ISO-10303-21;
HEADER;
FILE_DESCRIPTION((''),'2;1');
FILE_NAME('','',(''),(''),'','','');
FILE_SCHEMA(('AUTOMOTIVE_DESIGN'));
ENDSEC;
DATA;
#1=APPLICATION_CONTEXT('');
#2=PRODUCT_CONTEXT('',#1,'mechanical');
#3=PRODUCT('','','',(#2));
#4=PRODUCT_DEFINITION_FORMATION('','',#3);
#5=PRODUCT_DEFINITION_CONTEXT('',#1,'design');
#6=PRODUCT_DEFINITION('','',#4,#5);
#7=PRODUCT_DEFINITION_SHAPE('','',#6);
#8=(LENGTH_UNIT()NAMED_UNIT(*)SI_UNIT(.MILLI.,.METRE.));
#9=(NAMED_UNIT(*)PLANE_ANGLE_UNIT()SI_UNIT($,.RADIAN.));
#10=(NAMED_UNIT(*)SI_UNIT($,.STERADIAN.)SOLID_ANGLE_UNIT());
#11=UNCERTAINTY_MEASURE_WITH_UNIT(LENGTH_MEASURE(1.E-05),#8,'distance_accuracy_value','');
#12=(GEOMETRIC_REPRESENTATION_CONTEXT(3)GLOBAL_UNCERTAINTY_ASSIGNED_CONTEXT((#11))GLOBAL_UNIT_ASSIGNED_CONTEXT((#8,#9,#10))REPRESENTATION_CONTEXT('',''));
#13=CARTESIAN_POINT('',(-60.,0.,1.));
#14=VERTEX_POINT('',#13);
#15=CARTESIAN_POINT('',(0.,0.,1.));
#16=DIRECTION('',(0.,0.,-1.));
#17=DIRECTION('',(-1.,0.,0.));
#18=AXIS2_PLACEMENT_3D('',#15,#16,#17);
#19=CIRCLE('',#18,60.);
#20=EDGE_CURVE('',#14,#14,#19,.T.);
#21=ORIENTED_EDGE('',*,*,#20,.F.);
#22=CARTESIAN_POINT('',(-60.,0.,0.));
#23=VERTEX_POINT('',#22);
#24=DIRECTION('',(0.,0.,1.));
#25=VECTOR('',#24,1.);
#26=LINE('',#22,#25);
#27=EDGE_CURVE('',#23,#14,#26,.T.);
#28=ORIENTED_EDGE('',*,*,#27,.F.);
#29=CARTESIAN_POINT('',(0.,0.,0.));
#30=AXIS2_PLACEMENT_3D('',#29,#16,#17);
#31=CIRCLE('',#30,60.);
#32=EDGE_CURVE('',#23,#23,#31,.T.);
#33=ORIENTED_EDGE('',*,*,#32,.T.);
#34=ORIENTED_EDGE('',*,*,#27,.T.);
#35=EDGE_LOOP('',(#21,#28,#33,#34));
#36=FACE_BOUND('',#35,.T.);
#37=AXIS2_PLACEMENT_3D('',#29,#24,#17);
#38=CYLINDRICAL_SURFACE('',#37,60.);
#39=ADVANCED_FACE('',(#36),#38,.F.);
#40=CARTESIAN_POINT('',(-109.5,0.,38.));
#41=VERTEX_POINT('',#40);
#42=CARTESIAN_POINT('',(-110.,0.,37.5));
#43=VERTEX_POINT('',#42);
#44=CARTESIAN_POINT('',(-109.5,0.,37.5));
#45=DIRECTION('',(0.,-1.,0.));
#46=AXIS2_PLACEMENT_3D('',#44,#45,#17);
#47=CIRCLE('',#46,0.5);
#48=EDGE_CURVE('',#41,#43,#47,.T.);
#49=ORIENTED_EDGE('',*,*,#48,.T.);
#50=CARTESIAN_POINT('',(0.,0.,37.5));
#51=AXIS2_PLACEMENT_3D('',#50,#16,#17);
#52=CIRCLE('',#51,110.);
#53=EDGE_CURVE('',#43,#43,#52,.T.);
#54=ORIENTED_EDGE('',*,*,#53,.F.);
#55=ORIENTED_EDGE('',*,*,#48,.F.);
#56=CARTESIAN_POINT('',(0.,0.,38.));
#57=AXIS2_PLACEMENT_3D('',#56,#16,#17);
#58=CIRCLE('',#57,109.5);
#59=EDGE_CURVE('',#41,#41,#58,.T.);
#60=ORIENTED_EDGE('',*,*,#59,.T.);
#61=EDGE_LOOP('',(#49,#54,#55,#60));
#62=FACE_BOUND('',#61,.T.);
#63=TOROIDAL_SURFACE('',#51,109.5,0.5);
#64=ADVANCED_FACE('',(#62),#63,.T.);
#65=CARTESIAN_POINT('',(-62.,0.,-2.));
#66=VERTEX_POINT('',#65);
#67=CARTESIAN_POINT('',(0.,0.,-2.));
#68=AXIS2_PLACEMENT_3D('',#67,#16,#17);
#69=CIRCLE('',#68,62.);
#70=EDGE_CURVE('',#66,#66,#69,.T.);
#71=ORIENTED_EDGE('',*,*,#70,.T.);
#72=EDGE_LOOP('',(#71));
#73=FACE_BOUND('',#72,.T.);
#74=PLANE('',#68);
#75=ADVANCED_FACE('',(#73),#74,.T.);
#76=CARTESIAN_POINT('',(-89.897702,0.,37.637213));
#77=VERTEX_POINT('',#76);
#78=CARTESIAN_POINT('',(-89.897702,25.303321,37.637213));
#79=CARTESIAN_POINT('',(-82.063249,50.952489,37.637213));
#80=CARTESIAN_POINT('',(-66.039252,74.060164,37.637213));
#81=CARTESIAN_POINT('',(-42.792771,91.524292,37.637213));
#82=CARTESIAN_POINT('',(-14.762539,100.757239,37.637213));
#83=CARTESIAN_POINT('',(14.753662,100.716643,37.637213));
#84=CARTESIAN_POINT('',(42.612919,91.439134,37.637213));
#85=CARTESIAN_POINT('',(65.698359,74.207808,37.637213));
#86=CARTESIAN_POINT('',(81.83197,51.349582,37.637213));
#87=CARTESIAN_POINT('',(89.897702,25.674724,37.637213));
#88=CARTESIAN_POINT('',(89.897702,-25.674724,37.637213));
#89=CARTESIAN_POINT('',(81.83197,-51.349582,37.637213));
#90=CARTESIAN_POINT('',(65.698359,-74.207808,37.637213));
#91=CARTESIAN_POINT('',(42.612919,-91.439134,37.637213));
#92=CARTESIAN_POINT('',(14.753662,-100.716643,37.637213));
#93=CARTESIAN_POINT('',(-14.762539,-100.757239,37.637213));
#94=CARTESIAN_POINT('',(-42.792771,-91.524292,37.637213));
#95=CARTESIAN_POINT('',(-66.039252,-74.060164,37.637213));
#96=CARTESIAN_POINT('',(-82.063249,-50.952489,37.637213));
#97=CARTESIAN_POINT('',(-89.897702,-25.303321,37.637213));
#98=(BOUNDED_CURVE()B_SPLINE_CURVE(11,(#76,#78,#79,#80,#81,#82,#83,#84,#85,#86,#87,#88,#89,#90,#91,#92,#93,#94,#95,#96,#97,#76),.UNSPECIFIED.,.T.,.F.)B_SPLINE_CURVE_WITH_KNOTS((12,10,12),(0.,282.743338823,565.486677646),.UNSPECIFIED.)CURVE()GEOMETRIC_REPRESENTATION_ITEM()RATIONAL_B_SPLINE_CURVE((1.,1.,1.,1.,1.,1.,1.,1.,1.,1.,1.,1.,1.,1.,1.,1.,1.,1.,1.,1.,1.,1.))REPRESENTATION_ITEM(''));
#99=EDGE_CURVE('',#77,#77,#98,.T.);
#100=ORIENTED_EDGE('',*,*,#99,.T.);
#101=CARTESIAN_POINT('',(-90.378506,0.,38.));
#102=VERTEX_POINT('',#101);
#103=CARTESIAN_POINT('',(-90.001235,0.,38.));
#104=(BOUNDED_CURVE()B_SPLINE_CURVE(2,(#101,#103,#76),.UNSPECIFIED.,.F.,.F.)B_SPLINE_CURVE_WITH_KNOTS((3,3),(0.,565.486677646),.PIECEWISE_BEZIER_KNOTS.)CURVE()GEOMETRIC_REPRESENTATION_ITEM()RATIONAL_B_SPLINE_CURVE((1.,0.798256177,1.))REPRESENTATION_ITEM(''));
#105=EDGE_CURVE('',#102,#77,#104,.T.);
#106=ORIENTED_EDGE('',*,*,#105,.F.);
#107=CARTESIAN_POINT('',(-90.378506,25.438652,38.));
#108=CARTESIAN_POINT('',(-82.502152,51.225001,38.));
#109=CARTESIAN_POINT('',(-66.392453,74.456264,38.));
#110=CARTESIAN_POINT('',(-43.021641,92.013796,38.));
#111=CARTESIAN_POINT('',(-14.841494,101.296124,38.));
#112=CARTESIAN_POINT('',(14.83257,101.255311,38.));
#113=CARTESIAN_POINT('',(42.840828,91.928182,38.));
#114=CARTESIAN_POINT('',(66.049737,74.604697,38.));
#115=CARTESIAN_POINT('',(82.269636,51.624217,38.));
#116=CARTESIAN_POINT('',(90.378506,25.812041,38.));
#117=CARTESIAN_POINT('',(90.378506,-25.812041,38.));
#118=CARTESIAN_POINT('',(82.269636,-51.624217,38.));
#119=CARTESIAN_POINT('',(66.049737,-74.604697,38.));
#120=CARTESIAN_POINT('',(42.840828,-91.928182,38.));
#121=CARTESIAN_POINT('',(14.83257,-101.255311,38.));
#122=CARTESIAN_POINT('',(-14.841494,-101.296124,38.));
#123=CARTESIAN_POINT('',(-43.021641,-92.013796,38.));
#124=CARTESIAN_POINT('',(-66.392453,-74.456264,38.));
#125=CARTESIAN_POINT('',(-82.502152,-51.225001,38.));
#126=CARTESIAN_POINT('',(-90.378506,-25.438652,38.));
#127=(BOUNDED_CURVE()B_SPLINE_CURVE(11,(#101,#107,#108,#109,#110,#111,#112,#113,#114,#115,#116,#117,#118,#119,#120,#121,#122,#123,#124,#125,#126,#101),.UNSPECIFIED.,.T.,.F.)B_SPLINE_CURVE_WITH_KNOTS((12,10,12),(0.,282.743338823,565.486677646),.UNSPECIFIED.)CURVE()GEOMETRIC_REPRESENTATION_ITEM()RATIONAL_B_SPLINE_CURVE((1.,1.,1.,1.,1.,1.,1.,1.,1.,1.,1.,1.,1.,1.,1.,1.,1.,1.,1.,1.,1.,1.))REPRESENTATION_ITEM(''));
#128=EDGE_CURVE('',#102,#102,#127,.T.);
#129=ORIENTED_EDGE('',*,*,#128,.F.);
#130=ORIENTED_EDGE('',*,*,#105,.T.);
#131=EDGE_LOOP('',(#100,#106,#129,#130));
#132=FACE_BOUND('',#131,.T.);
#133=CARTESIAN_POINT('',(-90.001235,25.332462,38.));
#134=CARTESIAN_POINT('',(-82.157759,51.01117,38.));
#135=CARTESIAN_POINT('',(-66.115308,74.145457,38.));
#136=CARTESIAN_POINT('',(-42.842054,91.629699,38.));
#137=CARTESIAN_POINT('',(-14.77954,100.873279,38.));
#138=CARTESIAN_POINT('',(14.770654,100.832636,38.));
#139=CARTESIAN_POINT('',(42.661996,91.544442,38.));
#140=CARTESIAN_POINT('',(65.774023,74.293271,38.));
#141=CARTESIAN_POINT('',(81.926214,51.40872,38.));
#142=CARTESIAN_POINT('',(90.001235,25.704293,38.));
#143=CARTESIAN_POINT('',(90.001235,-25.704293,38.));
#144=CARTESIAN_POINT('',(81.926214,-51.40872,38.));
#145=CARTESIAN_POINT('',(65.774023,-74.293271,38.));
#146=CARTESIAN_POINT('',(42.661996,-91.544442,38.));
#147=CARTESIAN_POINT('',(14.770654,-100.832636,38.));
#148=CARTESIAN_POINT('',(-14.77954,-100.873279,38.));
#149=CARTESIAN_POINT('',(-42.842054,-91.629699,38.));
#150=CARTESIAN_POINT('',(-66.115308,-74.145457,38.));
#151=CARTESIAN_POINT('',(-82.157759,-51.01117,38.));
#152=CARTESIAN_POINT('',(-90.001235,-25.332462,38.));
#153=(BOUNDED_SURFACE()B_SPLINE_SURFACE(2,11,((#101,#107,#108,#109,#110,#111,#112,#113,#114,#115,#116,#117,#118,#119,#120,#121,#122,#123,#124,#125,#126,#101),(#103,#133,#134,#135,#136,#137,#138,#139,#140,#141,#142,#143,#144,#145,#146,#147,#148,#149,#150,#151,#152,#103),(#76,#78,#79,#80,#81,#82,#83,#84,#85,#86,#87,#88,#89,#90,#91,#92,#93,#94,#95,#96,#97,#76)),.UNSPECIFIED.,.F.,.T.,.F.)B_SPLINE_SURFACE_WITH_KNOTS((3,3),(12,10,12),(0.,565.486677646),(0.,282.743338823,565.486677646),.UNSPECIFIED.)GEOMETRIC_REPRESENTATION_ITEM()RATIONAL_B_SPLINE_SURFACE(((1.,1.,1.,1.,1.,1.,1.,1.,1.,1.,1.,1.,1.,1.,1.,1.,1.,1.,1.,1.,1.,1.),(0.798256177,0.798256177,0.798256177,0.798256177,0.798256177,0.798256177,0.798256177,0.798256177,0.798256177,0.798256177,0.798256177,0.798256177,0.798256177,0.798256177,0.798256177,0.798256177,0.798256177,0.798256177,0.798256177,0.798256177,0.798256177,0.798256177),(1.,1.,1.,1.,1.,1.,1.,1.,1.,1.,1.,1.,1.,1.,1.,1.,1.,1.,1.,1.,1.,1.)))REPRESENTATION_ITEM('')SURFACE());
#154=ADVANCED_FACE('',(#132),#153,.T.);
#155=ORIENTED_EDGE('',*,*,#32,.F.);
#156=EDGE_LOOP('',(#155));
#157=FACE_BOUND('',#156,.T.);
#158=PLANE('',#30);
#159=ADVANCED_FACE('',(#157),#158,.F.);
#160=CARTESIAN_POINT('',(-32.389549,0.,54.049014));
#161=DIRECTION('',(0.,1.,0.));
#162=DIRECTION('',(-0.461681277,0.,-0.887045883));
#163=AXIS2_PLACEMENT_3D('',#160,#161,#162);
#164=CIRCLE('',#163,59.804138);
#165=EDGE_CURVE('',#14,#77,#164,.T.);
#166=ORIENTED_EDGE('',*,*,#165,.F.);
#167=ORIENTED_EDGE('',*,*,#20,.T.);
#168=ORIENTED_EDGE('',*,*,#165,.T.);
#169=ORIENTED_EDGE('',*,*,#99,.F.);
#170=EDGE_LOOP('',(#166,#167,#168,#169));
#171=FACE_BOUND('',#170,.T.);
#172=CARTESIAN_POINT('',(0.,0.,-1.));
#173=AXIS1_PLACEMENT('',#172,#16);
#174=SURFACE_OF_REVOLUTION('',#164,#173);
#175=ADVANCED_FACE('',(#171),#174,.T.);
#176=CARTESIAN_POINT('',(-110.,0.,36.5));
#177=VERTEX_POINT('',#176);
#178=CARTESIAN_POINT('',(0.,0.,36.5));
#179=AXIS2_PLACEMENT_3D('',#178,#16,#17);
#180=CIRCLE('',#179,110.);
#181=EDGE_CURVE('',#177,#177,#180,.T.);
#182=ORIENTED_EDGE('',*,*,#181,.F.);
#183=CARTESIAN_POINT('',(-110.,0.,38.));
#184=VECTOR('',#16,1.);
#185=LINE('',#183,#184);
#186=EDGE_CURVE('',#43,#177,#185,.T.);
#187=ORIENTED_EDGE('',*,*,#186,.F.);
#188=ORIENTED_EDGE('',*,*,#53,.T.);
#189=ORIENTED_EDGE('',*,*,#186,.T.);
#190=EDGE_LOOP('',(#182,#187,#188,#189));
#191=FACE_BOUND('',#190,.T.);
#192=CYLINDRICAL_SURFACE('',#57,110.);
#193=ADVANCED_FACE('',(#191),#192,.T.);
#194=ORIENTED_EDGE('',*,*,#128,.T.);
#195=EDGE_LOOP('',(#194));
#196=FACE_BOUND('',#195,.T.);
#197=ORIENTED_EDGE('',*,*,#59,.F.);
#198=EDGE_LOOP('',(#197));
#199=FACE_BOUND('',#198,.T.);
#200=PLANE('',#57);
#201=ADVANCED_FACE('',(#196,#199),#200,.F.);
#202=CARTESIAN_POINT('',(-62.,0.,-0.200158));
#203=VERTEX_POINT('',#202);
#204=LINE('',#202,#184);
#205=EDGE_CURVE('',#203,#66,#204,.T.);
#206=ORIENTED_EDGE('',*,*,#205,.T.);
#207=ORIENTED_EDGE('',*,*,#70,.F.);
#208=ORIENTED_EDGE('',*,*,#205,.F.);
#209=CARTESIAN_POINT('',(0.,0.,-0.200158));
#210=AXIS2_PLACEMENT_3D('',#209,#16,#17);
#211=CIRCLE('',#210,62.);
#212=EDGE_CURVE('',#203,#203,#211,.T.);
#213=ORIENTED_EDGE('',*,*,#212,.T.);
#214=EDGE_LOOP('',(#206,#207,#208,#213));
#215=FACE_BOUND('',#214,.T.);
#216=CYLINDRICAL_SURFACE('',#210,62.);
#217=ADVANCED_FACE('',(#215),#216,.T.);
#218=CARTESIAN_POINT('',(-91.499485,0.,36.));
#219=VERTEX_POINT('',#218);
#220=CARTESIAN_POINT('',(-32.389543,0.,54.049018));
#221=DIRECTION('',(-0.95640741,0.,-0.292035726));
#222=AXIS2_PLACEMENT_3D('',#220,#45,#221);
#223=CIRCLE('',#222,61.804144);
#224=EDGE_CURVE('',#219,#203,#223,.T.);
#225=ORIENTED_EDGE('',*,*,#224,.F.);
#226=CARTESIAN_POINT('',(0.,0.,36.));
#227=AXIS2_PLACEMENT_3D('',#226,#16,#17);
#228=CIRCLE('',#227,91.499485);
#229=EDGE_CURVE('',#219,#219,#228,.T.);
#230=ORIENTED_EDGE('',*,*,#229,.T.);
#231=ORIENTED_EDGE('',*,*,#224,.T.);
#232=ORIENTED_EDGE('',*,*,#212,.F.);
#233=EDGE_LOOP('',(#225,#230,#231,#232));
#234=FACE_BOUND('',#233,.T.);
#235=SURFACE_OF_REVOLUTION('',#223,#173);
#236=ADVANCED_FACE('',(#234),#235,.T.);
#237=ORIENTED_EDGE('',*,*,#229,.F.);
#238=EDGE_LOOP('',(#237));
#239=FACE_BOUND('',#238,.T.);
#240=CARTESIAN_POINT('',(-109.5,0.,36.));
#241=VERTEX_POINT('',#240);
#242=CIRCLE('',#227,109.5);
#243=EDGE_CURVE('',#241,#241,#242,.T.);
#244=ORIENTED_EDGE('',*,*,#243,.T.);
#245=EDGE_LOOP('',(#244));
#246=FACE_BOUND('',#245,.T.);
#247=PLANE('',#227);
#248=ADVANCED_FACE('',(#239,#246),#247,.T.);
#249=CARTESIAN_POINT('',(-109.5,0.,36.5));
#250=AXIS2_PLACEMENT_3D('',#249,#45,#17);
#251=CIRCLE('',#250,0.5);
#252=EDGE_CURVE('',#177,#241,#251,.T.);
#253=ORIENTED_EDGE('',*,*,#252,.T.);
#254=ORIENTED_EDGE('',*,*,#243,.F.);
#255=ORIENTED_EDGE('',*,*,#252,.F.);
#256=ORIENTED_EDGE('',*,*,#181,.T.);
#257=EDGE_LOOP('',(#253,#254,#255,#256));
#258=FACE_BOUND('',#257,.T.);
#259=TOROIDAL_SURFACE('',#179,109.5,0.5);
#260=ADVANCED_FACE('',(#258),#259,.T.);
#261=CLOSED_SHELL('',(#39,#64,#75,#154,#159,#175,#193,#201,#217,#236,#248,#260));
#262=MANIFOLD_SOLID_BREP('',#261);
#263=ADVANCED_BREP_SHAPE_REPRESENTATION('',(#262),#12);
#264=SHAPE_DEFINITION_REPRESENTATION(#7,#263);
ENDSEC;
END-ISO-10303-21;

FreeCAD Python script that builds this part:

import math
import FreeCAD as App
import Part
import Sketcher
from FreeCAD import Vector


def edges_at(feature, points):
    """Names of the edges that pass closest to the given points."""
    edges = feature.Shape.Edges
    near = lambda p: min(range(len(edges)), key=lambda i: edges[i].distToShape(Part.Vertex(*p))[0])
    return sorted({f"Edge{near(p) + 1}" for p in points})

doc = App.newDocument("Part")
body = doc.addObject("PartDesign::Body", "Body")

sketch1 = doc.addObject("Sketcher::SketchObject", "Sketch")
body.addObject(sketch1)
sketch1.AttachmentSupport = (doc.XZ_Plane, [""])
sketch1.MapMode = "FlatFace"
sketch1.addGeometry(Part.LineSegment(Vector(-90, 38, 0), Vector(-110, 38, 0)), False)
sketch1.addGeometry(Part.LineSegment(Vector(-110, 38, 0), Vector(-110, 36, 0)), False)
sketch1.addGeometry(Part.LineSegment(Vector(-110, 36, 0), Vector(-91.499485, 36, 0)), False)
sketch1.addGeometry(Part.ArcOfCircle(Part.Circle(Vector(-32.389543, 54.049018, 0), Vector(0, 0, 1), 61.804144), math.radians(-163.020129), math.radians(-118.626734)), False)
sketch1.addGeometry(Part.LineSegment(Vector(-62, -0.200158, 0), Vector(-62, -2, 0)), False)
sketch1.addGeometry(Part.LineSegment(Vector(-62, -2, 0), Vector(0, -2, 0)), False)
sketch1.addGeometry(Part.LineSegment(Vector(0, -2, 0), Vector(0, 0, 0)), False)
sketch1.addGeometry(Part.LineSegment(Vector(0, 0, 0), Vector(-60, 0, 0)), False)
sketch1.addGeometry(Part.LineSegment(Vector(-60, 0, 0), Vector(-60, 1, 0)), False)
sketch1.addGeometry(Part.ArcOfCircle(Part.Circle(Vector(-32.389549, 54.049014, 0), Vector(0, 0, 1), 59.804138), math.radians(-164.433324), math.radians(-117.495651)), False)
sketch1.addConstraint(Sketcher.Constraint("Coincident", 0, 2, 1, 1))
sketch1.addConstraint(Sketcher.Constraint("Coincident", 1, 2, 2, 1))
sketch1.addConstraint(Sketcher.Constraint("Coincident", 2, 2, 3, 1))
sketch1.addConstraint(Sketcher.Constraint("Coincident", 3, 2, 4, 1))
sketch1.addConstraint(Sketcher.Constraint("Coincident", 4, 2, 5, 1))
sketch1.addConstraint(Sketcher.Constraint("Coincident", 5, 2, 6, 1))
sketch1.addConstraint(Sketcher.Constraint("Coincident", 6, 2, 7, 1))
sketch1.addConstraint(Sketcher.Constraint("Coincident", 7, 2, 8, 1))
sketch1.addConstraint(Sketcher.Constraint("Coincident", 8, 2, 9, 2))
sketch1.addConstraint(Sketcher.Constraint("Coincident", 9, 1, 0, 1))
sketch1.addConstraint(Sketcher.Constraint("Horizontal", 0))
sketch1.addConstraint(Sketcher.Constraint("Vertical", 1))
sketch1.addConstraint(Sketcher.Constraint("Horizontal", 2))
sketch1.addConstraint(Sketcher.Constraint("Vertical", 4))
sketch1.addConstraint(Sketcher.Constraint("Horizontal", 5))
sketch1.addConstraint(Sketcher.Constraint("Vertical", 6))
sketch1.addConstraint(Sketcher.Constraint("Horizontal", 7))
sketch1.addConstraint(Sketcher.Constraint("Vertical", 8))
sketch1.addConstraint(Sketcher.Constraint("Coincident", 6, 2, -1, 1))
sketch1.addConstraint(Sketcher.Constraint("Coincident", 9, 3, 3, 3))
sketch1.addConstraint(Sketcher.Constraint("Equal", 1, 6))
sketch1.addConstraint(Sketcher.Constraint("DistanceX", 0, 2, 0, 1, 20.0))
sketch1.addConstraint(Sketcher.Constraint("DistanceX", 5, 1, 5, 2, 62.0))
sketch1.addConstraint(Sketcher.Constraint("DistanceX", 7, 2, 7, 1, 60.0))
sketch1.addConstraint(Sketcher.Constraint("DistanceY", 1, 2, 1, 1, 2.0))
sketch1.addConstraint(Sketcher.Constraint("DistanceY", 8, 1, 8, 2, 1.0))
sketch1.addConstraint(Sketcher.Constraint("DistanceX", 0, 2, -1, 1, 110.0))
sketch1.addConstraint(Sketcher.Constraint("DistanceY", -1, 1, 0, 2, 38.0))
sketch1.addConstraint(Sketcher.Constraint("Radius", 3, 61.804144))
sketch1.addConstraint(Sketcher.Constraint("Radius", 9, 59.804138))
revolution = doc.addObject("PartDesign::Revolution", "Revolution")
body.addObject(revolution)
revolution.Profile = sketch1
revolution.ReferenceAxis = (sketch1, ["V_Axis"])
revolution.Angle = 360
doc.recompute()

fillet = doc.addObject("PartDesign::Fillet", "Fillet")
body.addObject(fillet)
fillet.Base = (revolution, edges_at(revolution, [(110, 0, 36), (110, 0, 38), (90, 0, 38)]))
fillet.Radius = 0.5

doc.recompute()
